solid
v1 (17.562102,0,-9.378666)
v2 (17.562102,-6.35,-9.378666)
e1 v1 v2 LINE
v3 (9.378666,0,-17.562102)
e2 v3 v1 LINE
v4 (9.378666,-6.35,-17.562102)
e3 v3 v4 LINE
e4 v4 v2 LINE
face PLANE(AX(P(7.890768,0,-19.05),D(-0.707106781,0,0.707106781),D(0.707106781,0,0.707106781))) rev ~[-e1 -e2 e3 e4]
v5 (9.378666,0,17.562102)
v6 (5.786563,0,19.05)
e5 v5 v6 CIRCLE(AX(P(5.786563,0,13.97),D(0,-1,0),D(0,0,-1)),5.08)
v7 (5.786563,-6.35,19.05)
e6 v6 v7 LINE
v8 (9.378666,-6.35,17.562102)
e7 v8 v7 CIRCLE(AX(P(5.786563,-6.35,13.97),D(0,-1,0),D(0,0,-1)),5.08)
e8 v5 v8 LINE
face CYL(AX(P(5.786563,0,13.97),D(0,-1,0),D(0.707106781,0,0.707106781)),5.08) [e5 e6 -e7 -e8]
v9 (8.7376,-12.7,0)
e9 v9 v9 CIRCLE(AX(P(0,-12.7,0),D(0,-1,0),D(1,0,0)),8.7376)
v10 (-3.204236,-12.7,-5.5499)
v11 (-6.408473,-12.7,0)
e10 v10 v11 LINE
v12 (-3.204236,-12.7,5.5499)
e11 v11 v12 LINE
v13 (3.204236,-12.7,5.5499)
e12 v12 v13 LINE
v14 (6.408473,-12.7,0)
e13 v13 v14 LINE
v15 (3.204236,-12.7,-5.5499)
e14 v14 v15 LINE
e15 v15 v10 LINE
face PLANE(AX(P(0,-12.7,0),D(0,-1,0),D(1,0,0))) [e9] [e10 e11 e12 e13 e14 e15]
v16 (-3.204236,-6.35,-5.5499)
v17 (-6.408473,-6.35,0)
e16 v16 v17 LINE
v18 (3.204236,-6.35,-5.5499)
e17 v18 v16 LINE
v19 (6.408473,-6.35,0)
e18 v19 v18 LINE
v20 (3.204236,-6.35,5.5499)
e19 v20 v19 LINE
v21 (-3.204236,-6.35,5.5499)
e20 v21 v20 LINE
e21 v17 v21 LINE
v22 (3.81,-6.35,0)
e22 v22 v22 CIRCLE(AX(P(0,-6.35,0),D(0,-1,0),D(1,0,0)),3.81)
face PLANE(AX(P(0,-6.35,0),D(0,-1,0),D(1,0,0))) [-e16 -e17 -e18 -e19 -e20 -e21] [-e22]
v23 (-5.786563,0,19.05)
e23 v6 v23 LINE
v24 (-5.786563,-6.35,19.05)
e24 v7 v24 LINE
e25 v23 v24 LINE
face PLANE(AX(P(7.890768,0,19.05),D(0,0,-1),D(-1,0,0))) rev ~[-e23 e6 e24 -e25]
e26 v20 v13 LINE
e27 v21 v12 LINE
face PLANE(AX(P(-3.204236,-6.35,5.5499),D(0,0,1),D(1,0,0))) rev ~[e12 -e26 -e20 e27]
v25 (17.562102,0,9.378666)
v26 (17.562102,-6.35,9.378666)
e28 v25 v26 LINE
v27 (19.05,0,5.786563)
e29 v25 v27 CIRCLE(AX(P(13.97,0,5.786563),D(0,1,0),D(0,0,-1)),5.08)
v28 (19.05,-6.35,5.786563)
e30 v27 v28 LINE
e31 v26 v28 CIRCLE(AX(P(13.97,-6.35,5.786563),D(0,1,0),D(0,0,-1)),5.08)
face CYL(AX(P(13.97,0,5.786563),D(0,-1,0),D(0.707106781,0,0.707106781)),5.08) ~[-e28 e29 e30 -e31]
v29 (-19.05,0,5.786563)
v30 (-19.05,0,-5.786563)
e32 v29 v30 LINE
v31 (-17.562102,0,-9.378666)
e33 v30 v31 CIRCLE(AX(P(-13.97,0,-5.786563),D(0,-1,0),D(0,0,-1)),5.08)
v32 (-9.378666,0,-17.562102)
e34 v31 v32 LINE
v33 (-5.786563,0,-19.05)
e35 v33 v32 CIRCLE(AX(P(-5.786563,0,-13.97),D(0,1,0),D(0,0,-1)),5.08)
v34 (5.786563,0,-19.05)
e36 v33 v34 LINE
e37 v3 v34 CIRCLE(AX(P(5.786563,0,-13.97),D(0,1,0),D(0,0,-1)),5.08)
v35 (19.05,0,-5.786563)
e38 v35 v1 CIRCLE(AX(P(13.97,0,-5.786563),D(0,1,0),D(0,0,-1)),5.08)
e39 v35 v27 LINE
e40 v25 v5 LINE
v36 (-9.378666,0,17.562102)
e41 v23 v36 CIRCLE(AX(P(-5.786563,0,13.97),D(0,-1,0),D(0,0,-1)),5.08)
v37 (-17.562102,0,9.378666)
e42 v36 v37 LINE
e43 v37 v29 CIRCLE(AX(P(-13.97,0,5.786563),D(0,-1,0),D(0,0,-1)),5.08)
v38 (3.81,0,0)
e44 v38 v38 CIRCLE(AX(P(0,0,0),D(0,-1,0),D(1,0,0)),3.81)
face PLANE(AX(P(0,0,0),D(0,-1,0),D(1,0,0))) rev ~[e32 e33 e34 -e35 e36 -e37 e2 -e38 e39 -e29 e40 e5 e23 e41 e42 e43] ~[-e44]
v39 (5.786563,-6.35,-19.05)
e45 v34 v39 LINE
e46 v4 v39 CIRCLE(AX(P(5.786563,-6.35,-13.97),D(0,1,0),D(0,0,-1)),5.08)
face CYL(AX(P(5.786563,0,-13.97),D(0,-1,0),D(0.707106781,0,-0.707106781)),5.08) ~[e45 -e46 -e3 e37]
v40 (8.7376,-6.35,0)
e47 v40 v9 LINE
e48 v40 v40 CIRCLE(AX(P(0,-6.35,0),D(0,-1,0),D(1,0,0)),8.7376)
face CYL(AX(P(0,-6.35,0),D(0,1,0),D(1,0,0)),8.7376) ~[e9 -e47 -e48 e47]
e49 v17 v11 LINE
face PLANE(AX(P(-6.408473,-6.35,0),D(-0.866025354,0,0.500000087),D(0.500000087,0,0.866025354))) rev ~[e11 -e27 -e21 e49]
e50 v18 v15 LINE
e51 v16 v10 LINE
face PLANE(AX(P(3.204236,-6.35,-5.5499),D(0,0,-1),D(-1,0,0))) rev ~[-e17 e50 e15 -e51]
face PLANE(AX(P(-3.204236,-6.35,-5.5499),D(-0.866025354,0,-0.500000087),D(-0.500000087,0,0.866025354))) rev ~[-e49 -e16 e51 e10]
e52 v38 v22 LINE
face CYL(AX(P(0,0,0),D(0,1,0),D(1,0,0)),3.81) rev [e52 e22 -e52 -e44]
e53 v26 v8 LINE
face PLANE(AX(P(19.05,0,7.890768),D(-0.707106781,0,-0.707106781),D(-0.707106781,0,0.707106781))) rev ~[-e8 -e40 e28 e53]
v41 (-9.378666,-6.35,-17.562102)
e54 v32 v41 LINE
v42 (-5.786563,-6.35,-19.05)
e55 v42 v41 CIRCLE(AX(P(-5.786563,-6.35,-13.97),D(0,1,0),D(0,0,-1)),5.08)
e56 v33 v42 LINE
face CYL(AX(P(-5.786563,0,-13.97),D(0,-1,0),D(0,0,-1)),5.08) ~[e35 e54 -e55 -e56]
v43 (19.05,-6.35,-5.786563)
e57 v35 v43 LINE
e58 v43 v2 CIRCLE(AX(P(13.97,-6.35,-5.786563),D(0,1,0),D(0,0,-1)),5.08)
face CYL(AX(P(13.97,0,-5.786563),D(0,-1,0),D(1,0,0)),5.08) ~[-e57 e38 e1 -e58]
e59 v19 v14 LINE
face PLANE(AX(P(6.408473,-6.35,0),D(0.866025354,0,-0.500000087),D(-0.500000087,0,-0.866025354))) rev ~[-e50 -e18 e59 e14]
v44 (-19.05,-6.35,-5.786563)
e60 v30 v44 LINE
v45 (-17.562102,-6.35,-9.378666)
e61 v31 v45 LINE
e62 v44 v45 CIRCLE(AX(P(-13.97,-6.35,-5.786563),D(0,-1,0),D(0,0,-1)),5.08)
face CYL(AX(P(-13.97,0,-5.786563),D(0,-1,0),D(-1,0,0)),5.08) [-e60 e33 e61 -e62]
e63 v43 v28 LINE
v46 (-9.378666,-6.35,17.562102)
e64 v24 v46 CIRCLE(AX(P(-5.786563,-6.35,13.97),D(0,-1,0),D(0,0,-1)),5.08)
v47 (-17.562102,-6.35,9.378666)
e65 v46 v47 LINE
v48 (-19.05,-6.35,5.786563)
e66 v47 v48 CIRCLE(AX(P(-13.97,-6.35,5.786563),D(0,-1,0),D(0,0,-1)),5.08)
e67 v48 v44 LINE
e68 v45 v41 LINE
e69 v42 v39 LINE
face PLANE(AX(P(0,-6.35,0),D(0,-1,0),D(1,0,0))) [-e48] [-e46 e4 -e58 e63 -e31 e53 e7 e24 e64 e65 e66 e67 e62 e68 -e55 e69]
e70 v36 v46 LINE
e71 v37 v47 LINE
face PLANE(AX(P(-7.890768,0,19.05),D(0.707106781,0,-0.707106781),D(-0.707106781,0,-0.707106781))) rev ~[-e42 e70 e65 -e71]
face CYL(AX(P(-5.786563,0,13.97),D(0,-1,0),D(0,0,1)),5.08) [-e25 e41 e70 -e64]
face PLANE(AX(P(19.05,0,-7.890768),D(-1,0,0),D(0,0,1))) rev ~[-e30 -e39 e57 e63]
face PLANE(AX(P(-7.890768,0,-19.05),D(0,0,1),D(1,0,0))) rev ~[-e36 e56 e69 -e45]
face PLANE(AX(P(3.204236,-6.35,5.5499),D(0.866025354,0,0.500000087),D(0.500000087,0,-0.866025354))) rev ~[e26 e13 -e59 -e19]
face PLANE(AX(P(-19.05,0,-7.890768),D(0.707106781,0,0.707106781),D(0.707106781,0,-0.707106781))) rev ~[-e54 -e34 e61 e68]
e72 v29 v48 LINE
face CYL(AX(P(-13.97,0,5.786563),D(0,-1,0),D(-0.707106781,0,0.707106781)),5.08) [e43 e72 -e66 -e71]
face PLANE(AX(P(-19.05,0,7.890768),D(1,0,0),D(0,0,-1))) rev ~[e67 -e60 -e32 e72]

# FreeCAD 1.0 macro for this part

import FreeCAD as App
import Part
import Sketcher
from FreeCAD import Vector
Q = App.Units.Quantity


def edges_at(feature, points):
    """Names of the edges that pass closest to the given points."""
    edges = feature.Shape.Edges
    near = lambda p: min(range(len(edges)), key=lambda i: edges[i].distToShape(Part.Vertex(*p))[0])
    return sorted({f"Edge{near(p) + 1}" for p in points})


def add_polygon(sketch, points):
    """Adds a closed chain of lines whose ends are joined by coincident constraints."""
    first, n = sketch.GeometryCount, len(points)
    for a, b in zip(points, points[1:] + points[:1]):
        sketch.addGeometry(Part.LineSegment(App.Vector(*a, 0), App.Vector(*b, 0)), False)
    for i in range(n):
        sketch.addConstraint(Sketcher.Constraint("Coincident", first + i, 2, first + (i + 1) % n, 1))

doc = App.newDocument("Part")
params = doc.addObject("Spreadsheet::Sheet", "Params")
for row, (alias, value) in enumerate([
    ("sketch1_diameter", "0.3 in"),
    ("pad1_length", "0.25 in"),
    ("sketch2_diameter", "0.688 in"),
    ("pad2_length", "0.25 in"),
    ("fillet_radius", "0.2 in"),
], start=1):
    params.set(f"A{row}", alias)
    params.set(f"B{row}", "=" + value)
    params.setAlias(f"B{row}", alias)

body = doc.addObject("PartDesign::Body", "Body")

# Sketch on XZ plane
sketch1 = doc.addObject("Sketcher::SketchObject", "Sketch")
body.addObject(sketch1)
sketch1.AttachmentSupport = (doc.XZ_Plane, [""])
sketch1.MapMode = "FlatFace"
add_polygon(sketch1, [(19.1, 7.9), (7.9, 19.1), (-7.9, 19.1), (-19.1, 7.9), (-19.1, -7.9), (-7.9, -19.1), (7.9, -19.1), (19.1, -7.9)])  # lines 0-7
sketch1.addGeometry(Part.Circle(Vector(0, 0, 0), Vector(0, 0, 1), 3.8), False)  # 8
sketch1.addConstraint(Sketcher.Constraint("Horizontal", 1))
sketch1.addConstraint(Sketcher.Constraint("Vertical", 3))
sketch1.addConstraint(Sketcher.Constraint("Horizontal", 5))
sketch1.addConstraint(Sketcher.Constraint("Vertical", 7))
sketch1.addConstraint(Sketcher.Constraint("Coincident", 8, 3, -1, 1))
sketch1.addConstraint(Sketcher.Constraint("Symmetric", 0, 2, 4, 2, -1, 1))
sketch1.addConstraint(Sketcher.Constraint("Symmetric", 2, 2, 6, 2, -1, 1))
sketch1.addConstraint(Sketcher.Constraint("Perpendicular", 0, 2))
sketch1.addConstraint(Sketcher.Constraint("Perpendicular", 2, 4))
sketch1.addConstraint(Sketcher.Constraint("Perpendicular", 4, 6))
sketch1.addConstraint(Sketcher.Constraint("Horizontal", 3, 2, 6, 2))
sketch1.addConstraint(Sketcher.Constraint("Vertical", 1, 2, 4, 2))
sketch1.addConstraint(Sketcher.Constraint("Equal", 5, 3))
sketch1.addConstraint(Sketcher.Constraint("Diameter", 8, Q("0.3 in")))
sketch1.addConstraint(Sketcher.Constraint("DistanceY", 4, 2, 1, 2, Q("1.5 in")))
sketch1.addConstraint(Sketcher.Constraint("DistanceX", 1, 2, 1, 1, Q("15.781536 mm")))
sketch1.setExpression("Constraints[21]", "Params.sketch1_diameter")
pad1 = doc.addObject("PartDesign::Pad", "Pad")
body.addObject(pad1)
pad1.Profile = sketch1
pad1.setExpression("Length", "Params.pad1_length")

# Sketch on XZ plane
sketch2 = doc.addObject("Sketcher::SketchObject", "Sketch001")
body.addObject(sketch2)
sketch2.AttachmentSupport = (doc.XZ_Plane, [""])
sketch2.MapMode = "FlatFace"
sketch2.AttachmentOffset = App.Placement(Vector(0, 0, 0.25 * 25.4), App.Rotation())
sketch2.addGeometry(Part.Circle(Vector(0, 0, 0), Vector(0, 0, 1), 9), False)  # 0
add_polygon(sketch2, [(3, -6), (-3, -6), (-6, 0), (-3, 6), (3, 6), (6, 0)])  # lines 1-6
sketch2.addConstraint(Sketcher.Constraint("Horizontal", 1))
sketch2.addConstraint(Sketcher.Constraint("Horizontal", 4))
sketch2.addConstraint(Sketcher.Constraint("Coincident", 0, 3, -1, 1))
sketch2.addConstraint(Sketcher.Constraint("Symmetric", 1, 2, 4, 2, -1, 1))
sketch2.addConstraint(Sketcher.Constraint("Symmetric", 2, 2, 5, 2, -1, 1))
sketch2.addConstraint(Sketcher.Constraint("PointOnObject", 2, 2, -1))
sketch2.addConstraint(Sketcher.Constraint("Parallel", 3, 6))
sketch2.addConstraint(Sketcher.Constraint("Vertical", 1, 2, 3, 2))
sketch2.addConstraint(Sketcher.Constraint("Diameter", 0, Q("0.688 in")))
sketch2.addConstraint(Sketcher.Constraint("Angle", 2, Q("120.000006 deg")))
sketch2.addConstraint(Sketcher.Constraint("DistanceY", 1, 2, 3, 2, Q("0.437 in")))
sketch2.addConstraint(Sketcher.Constraint("DistanceX", 1, 2, 1, 1, Q("6.408472 mm")))
sketch2.setExpression("Constraints[14]", "Params.sketch2_diameter")
pad2 = doc.addObject("PartDesign::Pad", "Pad001")
body.addObject(pad2)
pad2.Profile = sketch2
pad2.setExpression("Length", "Params.pad2_length")
doc.recompute()

fillet = doc.addObject("PartDesign::Fillet", "Fillet")
body.addObject(fillet)
fillet.Base = (pad2, edges_at(pad2, [
    (7.891, -3.175, 19.05),
    (19.05, -3.175, 7.891),
    (19.05, -3.175, -7.891),
    (7.891, -3.175, -19.05),
    (-7.891, -3.175, -19.05),
    (-19.05, -3.175, -7.891),
    (-19.05, -3.175, 7.891),
    (-7.891, -3.175, 19.05),
]))
fillet.setExpression("Radius", "Params.fillet_radius")

doc.recompute()
